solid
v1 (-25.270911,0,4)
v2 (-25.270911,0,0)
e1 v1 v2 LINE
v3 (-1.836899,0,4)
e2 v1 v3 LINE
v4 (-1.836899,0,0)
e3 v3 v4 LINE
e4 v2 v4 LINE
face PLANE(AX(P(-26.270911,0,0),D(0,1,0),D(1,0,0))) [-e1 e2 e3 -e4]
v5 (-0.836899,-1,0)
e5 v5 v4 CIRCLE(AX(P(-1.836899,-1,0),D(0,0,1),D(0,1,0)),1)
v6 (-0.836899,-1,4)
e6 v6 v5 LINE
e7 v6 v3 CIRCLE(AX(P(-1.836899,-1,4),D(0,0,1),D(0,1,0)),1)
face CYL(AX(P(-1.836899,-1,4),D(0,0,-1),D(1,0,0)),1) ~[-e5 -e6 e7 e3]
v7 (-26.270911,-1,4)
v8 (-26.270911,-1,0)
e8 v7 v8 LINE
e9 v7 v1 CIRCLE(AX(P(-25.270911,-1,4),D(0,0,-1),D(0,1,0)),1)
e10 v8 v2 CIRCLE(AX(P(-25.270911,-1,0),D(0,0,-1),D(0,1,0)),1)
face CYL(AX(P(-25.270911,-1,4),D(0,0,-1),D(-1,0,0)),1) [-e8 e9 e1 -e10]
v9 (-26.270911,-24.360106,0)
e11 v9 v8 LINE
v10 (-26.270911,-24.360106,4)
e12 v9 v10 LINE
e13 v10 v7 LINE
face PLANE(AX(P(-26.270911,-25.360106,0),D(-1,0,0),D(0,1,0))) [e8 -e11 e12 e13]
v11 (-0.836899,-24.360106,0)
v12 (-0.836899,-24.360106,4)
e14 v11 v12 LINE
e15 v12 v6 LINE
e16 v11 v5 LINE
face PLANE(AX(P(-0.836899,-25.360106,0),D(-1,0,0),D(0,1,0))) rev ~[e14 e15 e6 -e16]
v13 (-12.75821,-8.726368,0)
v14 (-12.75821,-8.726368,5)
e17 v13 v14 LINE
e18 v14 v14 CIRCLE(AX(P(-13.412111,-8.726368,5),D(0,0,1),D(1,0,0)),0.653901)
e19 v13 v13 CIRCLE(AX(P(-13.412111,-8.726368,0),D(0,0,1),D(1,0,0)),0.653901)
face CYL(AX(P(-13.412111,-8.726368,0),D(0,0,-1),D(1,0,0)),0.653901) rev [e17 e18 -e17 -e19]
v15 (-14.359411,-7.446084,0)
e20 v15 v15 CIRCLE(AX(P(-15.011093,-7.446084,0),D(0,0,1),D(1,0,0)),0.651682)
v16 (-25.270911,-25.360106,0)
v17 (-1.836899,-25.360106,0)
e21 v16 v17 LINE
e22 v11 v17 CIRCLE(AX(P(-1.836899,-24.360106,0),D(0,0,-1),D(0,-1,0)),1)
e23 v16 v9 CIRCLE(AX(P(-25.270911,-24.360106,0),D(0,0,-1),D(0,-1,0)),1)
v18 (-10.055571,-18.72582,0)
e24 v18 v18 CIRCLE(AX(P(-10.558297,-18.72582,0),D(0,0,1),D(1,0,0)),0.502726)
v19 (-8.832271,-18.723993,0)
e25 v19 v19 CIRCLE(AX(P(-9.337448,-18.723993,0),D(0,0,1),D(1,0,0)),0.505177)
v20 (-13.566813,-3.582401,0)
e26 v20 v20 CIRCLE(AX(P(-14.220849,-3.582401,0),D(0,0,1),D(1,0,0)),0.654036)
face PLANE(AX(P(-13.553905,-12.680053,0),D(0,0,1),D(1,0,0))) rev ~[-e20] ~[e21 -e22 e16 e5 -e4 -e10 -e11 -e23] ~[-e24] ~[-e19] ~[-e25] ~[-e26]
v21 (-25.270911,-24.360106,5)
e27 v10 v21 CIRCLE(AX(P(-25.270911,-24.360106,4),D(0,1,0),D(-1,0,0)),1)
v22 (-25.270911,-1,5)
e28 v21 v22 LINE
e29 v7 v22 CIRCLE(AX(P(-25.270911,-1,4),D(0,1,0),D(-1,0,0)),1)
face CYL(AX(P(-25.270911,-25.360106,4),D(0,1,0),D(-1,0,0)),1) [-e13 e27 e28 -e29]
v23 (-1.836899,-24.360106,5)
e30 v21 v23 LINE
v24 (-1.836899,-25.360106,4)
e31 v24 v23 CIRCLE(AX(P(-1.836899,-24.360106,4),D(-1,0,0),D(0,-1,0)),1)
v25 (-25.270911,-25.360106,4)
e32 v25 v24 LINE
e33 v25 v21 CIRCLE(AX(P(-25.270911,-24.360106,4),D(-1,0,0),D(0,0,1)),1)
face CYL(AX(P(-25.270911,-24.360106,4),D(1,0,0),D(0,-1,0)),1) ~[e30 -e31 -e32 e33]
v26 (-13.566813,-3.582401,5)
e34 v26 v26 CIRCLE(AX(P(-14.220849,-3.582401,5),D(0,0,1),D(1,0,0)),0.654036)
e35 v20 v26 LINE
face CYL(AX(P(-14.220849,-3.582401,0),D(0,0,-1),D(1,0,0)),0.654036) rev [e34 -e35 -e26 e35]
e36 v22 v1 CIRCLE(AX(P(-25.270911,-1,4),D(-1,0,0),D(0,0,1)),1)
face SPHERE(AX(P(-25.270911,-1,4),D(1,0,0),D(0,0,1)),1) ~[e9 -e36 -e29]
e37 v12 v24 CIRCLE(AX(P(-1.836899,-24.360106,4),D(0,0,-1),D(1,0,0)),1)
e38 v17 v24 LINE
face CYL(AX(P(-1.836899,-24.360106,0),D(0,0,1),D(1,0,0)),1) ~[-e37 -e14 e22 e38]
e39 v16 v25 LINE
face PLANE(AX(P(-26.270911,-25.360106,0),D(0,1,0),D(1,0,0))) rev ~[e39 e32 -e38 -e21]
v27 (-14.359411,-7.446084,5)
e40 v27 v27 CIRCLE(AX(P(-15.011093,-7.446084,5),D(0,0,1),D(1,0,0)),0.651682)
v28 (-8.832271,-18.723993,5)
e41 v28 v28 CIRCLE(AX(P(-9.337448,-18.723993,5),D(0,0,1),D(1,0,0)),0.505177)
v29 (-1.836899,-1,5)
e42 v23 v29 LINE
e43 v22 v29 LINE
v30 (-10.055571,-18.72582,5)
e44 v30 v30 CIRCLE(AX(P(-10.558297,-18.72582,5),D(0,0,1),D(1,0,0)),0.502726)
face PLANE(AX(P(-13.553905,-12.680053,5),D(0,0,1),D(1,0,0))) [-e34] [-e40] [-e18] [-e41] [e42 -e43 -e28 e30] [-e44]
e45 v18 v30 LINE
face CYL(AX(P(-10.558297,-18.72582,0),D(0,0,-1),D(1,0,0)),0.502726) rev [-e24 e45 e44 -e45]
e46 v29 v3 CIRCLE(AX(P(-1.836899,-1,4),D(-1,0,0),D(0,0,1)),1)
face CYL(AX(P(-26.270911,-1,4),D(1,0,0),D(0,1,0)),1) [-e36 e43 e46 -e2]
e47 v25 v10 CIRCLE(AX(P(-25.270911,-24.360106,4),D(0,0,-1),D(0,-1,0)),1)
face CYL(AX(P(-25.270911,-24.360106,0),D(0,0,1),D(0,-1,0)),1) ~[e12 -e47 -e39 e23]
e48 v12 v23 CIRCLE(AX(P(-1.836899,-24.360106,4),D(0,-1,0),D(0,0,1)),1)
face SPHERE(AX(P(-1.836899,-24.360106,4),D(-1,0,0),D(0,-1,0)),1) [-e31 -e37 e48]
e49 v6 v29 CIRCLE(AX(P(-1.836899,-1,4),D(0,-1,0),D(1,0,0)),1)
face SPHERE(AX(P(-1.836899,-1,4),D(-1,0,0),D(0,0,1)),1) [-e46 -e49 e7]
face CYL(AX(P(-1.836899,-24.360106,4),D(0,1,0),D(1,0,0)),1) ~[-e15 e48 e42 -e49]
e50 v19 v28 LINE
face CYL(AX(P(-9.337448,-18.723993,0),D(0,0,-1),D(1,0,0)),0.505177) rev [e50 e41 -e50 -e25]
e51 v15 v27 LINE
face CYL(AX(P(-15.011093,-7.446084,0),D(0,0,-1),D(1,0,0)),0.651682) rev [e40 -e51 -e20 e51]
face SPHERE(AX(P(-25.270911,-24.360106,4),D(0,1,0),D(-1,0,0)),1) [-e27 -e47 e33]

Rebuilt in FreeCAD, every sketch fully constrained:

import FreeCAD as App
import Part
import Sketcher
Q = App.Units.Quantity


def edges_at(feature, points):
    """Names of the edges that pass closest to the given points."""
    edges = feature.Shape.Edges
    near = lambda p: min(range(len(edges)), key=lambda i: edges[i].distToShape(Part.Vertex(*p))[0])
    return sorted({f"Edge{near(p) + 1}" for p in points})

doc = App.newDocument("Part")
params = doc.addObject("Spreadsheet::Sheet", "Params")
for row, (alias, value) in enumerate([
    ("pad1_length", "5 mm"),
    ("fillet_radius", "1 mm"),
    ("fillet2_radius", "1 mm"),
    ("fillet3_radius", "1 mm"),
    ("fillet4_radius", "1 mm"),
], start=1):
    params.set(f"A{row}", alias)
    params.set(f"B{row}", "=" + value)
    params.setAlias(f"B{row}", alias)

body = doc.addObject("PartDesign::Body", "Body")

# Sketch on XY plane
sketch1 = body.newObject("Sketcher::SketchObject", "Sketch")
sketch1.AttachmentSupport = (doc.getObject("XY_Plane"), [""])
sketch1.MapMode = "FlatFace"
sketch1.addGeometry([
    Part.LineSegment(App.Vector(-26.3, 0, 0), App.Vector(-26.3, -25.4, 0)),  # 0
    Part.LineSegment(App.Vector(-26.3, -25.4, 0), App.Vector(-0.8, -25.4, 0)),  # 1
    Part.LineSegment(App.Vector(-0.8, -25.4, 0), App.Vector(-0.8, 0, 0)),  # 2
    Part.LineSegment(App.Vector(-0.8, 0, 0), App.Vector(-26.3, 0, 0)),  # 3
    Part.Circle(App.Vector(-10.6, -18.7, 0), App.Vector(0, 0, 1), 0.5),  # 4
    Part.Circle(App.Vector(-9.3, -18.7, 0), App.Vector(0, 0, 1), 0.5),  # 5
    Part.Circle(App.Vector(-15, -7.4, 0), App.Vector(0, 0, 1), 0.7),  # 6
    Part.Circle(App.Vector(-13.4, -8.7, 0), App.Vector(0, 0, 1), 0.7),  # 7
    Part.Circle(App.Vector(-14.2, -3.6, 0), App.Vector(0, 0, 1), 0.7),  # 8
], False)
sketch1.addConstraint([
    Sketcher.Constraint("Coincident", 0, 2, 1, 1),
    Sketcher.Constraint("Coincident", 1, 2, 2, 1),
    Sketcher.Constraint("Coincident", 2, 2, 3, 1),
    Sketcher.Constraint("Coincident", 3, 2, 0, 1),
    Sketcher.Constraint("Vertical", 0),
    Sketcher.Constraint("Horizontal", 1),
    Sketcher.Constraint("Vertical", 2),
    Sketcher.Constraint("Horizontal", 3),
    Sketcher.Constraint("PointOnObject", 2, 2, -1),
    Sketcher.Constraint("Diameter", 7, Q("1.307802 mm")),
    Sketcher.Constraint("Diameter", 8, Q("1.308072 mm")),
    Sketcher.Constraint("Diameter", 4, Q("1.005452 mm")),
    Sketcher.Constraint("Diameter", 5, Q("1.010354 mm")),
    Sketcher.Constraint("Diameter", 6, Q("1.303364 mm")),
    Sketcher.Constraint("DistanceY", 8, 3, -1, 1, Q("3.582401 mm")),
    Sketcher.Constraint("DistanceX", 1, 2, -1, 1, Q("0.836899 mm")),
    Sketcher.Constraint("DistanceX", 8, 3, 5, 3, Q("4.883401 mm")),
    Sketcher.Constraint("DistanceX", 0, 2, 7, 3, Q("12.8588 mm")),
    Sketcher.Constraint("DistanceX", 1, 1, 1, 2, Q("25.434012 mm")),
    Sketcher.Constraint("DistanceY", 0, 2, 0, 1, Q("25.360106 mm")),
    Sketcher.Constraint("DistanceY", 4, 3, -1, 1, Q("18.72582 mm")),
    Sketcher.Constraint("DistanceY", 7, 3, -1, 1, Q("8.726368 mm")),
    Sketcher.Constraint("DistanceX", 8, 3, -1, 1, Q("14.220849 mm")),
    Sketcher.Constraint("DistanceX", 4, 3, 5, 3, Q("1.220849 mm")),
    Sketcher.Constraint("DistanceY", 5, 3, 6, 3, Q("11.277909 mm")),
    Sketcher.Constraint("DistanceY", 5, 3, 8, 3, Q("15.141592 mm")),
    Sketcher.Constraint("DistanceX", 0, 2, 6, 3, Q("11.259818 mm")),
])
pad1 = body.newObject("PartDesign::Pad", "Pad")
pad1.Profile = sketch1
pad1.setExpression("Length", "Params.pad1_length")
doc.recompute()

fillet = body.newObject("PartDesign::Fillet", "Fillet")
fillet.Base = (pad1, edges_at(pad1, [(-13.554, 0, 5)]))
fillet.setExpression("Radius", "Params.fillet_radius")
doc.recompute()

fillet2 = body.newObject("PartDesign::Fillet", "Fillet001")
fillet2.Base = (fillet, edges_at(fillet, [(-26.271, -13.18, 5)]))
fillet2.setExpression("Radius", "Params.fillet2_radius")
doc.recompute()

fillet3 = body.newObject("PartDesign::Fillet", "Fillet002")
fillet3.Base = (fillet2, edges_at(fillet2, [(-13.054, -25.36, 5)]))
fillet3.setExpression("Radius", "Params.fillet3_radius")
doc.recompute()

fillet4 = body.newObject("PartDesign::Fillet", "Fillet003")
fillet4.Base = (fillet3, edges_at(fillet3, [(-0.837, -12.68, 5)]))
fillet4.setExpression("Radius", "Params.fillet4_radius")

doc.recompute()
